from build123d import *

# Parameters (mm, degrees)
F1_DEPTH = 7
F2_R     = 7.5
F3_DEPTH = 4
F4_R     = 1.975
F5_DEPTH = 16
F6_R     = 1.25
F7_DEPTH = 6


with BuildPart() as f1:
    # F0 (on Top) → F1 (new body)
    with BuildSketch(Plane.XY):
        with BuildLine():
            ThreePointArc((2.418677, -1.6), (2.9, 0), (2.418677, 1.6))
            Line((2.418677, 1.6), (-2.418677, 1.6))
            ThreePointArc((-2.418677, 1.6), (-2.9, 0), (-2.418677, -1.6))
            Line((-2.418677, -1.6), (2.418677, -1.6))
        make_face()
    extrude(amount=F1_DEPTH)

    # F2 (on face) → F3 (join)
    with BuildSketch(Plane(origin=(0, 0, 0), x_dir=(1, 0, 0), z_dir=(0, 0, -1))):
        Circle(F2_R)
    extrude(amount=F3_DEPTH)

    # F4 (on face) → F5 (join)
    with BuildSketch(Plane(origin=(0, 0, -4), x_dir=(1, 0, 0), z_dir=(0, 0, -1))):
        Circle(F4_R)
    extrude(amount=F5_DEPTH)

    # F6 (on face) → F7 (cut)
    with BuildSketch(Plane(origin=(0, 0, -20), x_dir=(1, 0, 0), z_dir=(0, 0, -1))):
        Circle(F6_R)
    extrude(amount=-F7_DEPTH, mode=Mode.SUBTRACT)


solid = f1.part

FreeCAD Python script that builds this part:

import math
import FreeCAD as App
import Part
import Sketcher

V = App.Vector

doc = App.newDocument("Part")
params = doc.addObject("Spreadsheet::Sheet", "Params")
for row, (alias, value) in enumerate([
    ("sketch1_radius", "2.899998 mm"),
    ("pad1_length", "7 mm"),
    ("sketch2_diameter", "15 mm"),
    ("pad2_length", "4 mm"),
    ("sketch3_diameter", "3.95 mm"),
    ("pad3_length", "16 mm"),
    ("sketch4_diameter", "2.5 mm"),
    ("pocket1_length", "6 mm"),
], start=1):
    params.set(f"A{row}", alias)
    params.set(f"B{row}", "=" + value)
    params.setAlias(f"B{row}", alias)

body = doc.addObject("PartDesign::Body", "Body")

# Sketch on XY plane
sketch1 = body.newObject("Sketcher::SketchObject", "Sketch")
sketch1.AttachmentSupport = (doc.getObject("XY_Plane"), [""])
sketch1.MapMode = "FlatFace"
sketch1.addGeometry([
    Part.ArcOfCircle(Part.Circle(V(0, 0, 0), V(0, 0, 1), 2.9), math.radians(-33), math.radians(33)),
    Part.LineSegment(V(2.4, 1.6, 0), V(-2.4, 1.6, 0)),
    Part.ArcOfCircle(Part.Circle(V(0, 0, 0), V(0, 0, 1), 2.9), math.radians(147), math.radians(213)),
    Part.LineSegment(V(-2.4, -1.6, 0), V(2.4, -1.6, 0)),
], False)
sketch1.addConstraint([
    Sketcher.Constraint("Coincident", 0, 2, 1, 1),
    Sketcher.Constraint("Coincident", 1, 2, 2, 1),
    Sketcher.Constraint("Coincident", 2, 2, 3, 1),
    Sketcher.Constraint("Coincident", 3, 2, 0, 1),
    Sketcher.Constraint("Horizontal", 1),
    Sketcher.Constraint("Horizontal", 3),
    Sketcher.Constraint("Coincident", 0, 3, -1, 1),
    Sketcher.Constraint("Coincident", 2, 3, -1, 1),
    Sketcher.Constraint("Equal", 0, 2),
    Sketcher.Constraint("Vertical", 1, 2, 2, 2),
    Sketcher.Constraint("Radius", 0, 2.899998),
    Sketcher.Constraint("DistanceY", -1, 1, 0, 2, 1.6),
])
sketch1.setExpression("Constraints[10]", "Params.sketch1_radius")
pad1 = body.newObject("PartDesign::Pad", "Pad")
pad1.Profile = sketch1
pad1.setExpression("Length", "Params.pad1_length")

# Sketch on XY plane
sketch2 = body.newObject("Sketcher::SketchObject", "Sketch001")
sketch2.AttachmentSupport = (doc.getObject("XY_Plane"), [""])
sketch2.MapMode = "FlatFace"
sketch2.addGeometry(Part.Circle(V(0, 0, 0), V(0, 0, 1), 8), False)
sketch2.addConstraint([
    Sketcher.Constraint("Coincident", 0, 3, -1, 1),
    Sketcher.Constraint("Diameter", 0, 15.0),
])
sketch2.setExpression("Constraints[1]", "Params.sketch2_diameter")
pad2 = body.newObject("PartDesign::Pad", "Pad001")
pad2.Profile = sketch2
pad2.setExpression("Length", "Params.pad2_length")
pad2.Reversed = True

# Sketch on XY plane
sketch3 = body.newObject("Sketcher::SketchObject", "Sketch002")
sketch3.AttachmentSupport = (doc.getObject("XY_Plane"), [""])
sketch3.MapMode = "FlatFace"
sketch3.AttachmentOffset = App.Placement(V(0, 0, -4), App.Rotation())
sketch3.addGeometry(Part.Circle(V(0, 0, 0), V(0, 0, 1), 2), False)
sketch3.addConstraint([
    Sketcher.Constraint("Coincident", 0, 3, -1, 1),
    Sketcher.Constraint("Diameter", 0, 3.95),
])
sketch3.setExpression("Constraints[1]", "Params.sketch3_diameter")
pad3 = body.newObject("PartDesign::Pad", "Pad002")
pad3.Profile = sketch3
pad3.setExpression("Length", "Params.pad3_length")
pad3.Reversed = True

# Sketch on XY plane
sketch4 = body.newObject("Sketcher::SketchObject", "Sketch003")
sketch4.AttachmentSupport = (doc.getObject("XY_Plane"), [""])
sketch4.MapMode = "FlatFace"
sketch4.AttachmentOffset = App.Placement(V(0, 0, -20), App.Rotation())
sketch4.addGeometry(Part.Circle(V(0, 0, 0), V(0, 0, 1), 1.2), False)
sketch4.addConstraint([
    Sketcher.Constraint("Coincident", 0, 3, -1, 1),
    Sketcher.Constraint("Diameter", 0, 2.5),
])
sketch4.setExpression("Constraints[1]", "Params.sketch4_diameter")
pocket1 = body.newObject("PartDesign::Pocket", "Pocket")
pocket1.Profile = sketch4
pocket1.setExpression("Length", "Params.pocket1_length")
pocket1.Reversed = True

doc.recompute()
